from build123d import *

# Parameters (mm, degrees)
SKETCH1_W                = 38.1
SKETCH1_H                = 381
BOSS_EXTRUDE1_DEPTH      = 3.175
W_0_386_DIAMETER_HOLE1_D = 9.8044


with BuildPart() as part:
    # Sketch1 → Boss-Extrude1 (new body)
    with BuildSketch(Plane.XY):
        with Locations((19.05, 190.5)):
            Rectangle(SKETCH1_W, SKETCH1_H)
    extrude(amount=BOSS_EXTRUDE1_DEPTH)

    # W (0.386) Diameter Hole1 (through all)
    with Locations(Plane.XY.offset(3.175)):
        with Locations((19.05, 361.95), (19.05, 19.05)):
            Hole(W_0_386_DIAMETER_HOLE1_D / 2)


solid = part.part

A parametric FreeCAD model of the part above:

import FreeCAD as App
import Part
import Sketcher
Q = App.Units.Quantity


def add_polygon(sketch, points):
    """Adds a closed chain of lines whose ends are joined by coincident constraints."""
    first, n = sketch.GeometryCount, len(points)
    for a, b in zip(points, points[1:] + points[:1]):
        sketch.addGeometry(Part.LineSegment(App.Vector(*a, 0), App.Vector(*b, 0)), False)
    for i in range(n):
        sketch.addConstraint(Sketcher.Constraint("Coincident", first + i, 2, first + (i + 1) % n, 1))

doc = App.newDocument("Part")
body = doc.addObject("PartDesign::Body", "Body")

sketch1 = body.newObject("Sketcher::SketchObject", "Sketch")
sketch1.AttachmentSupport = (doc.getObject("XY_Plane"), [""])
sketch1.MapMode = "FlatFace"
add_polygon(sketch1, [(0, 381), (0, 0), (38, 0), (38, 381)])
sketch1.addConstraint(Sketcher.Constraint("Vertical", 0))
sketch1.addConstraint(Sketcher.Constraint("Horizontal", 1))
sketch1.addConstraint(Sketcher.Constraint("Vertical", 2))
sketch1.addConstraint(Sketcher.Constraint("Horizontal", 3))
sketch1.addConstraint(Sketcher.Constraint("Coincident", 0, 2, -1, 1))
sketch1.addConstraint(Sketcher.Constraint("DistanceY", 0, 2, 0, 1, Q("15 in")))
sketch1.addConstraint(Sketcher.Constraint("DistanceX", 1, 1, 1, 2, Q("1.5 in")))
pad1 = body.newObject("PartDesign::Pad", "Pad")
pad1.Profile = sketch1
pad1.Length = Q("0.125 in")

sketch2 = body.newObject("Sketcher::SketchObject", "Sketch001")
sketch2.AttachmentSupport = (doc.getObject("XY_Plane"), [""])
sketch2.MapMode = "FlatFace"
sketch2.AttachmentOffset = App.Placement(App.Vector(0, 0, 0.125 * 25.4), App.Rotation())
sketch2.addGeometry(Part.Circle(App.Vector(19.1, 361.9, 0), App.Vector(0, 0, 1), 4.9), False)
sketch2.addGeometry(Part.Circle(App.Vector(19.1, 19.1, 0), App.Vector(0, 0, 1), 4.9), False)
sketch2.addConstraint(Sketcher.Constraint("Equal", 0, 1))
sketch2.addConstraint(Sketcher.Constraint("Vertical", 0, 3, 1, 3))
sketch2.addConstraint(Sketcher.Constraint("Diameter", 0, Q("0.386 in")))
sketch2.addConstraint(Sketcher.Constraint("DistanceY", 1, 3, 0, 3, Q("13.5 in")))
sketch2.addConstraint(Sketcher.Constraint("DistanceX", -1, 1, 0, 3, Q("0.75 in")))
sketch2.addConstraint(Sketcher.Constraint("DistanceY", -1, 1, 0, 3, Q("14.25 in")))
doc.recompute()
hole = body.newObject("PartDesign::Hole", "Hole")
hole.Profile = sketch2
hole.ThreadType = "None"
hole.Diameter = Q("0.386 in")
hole.DepthType = "ThroughAll"

doc.recompute()
